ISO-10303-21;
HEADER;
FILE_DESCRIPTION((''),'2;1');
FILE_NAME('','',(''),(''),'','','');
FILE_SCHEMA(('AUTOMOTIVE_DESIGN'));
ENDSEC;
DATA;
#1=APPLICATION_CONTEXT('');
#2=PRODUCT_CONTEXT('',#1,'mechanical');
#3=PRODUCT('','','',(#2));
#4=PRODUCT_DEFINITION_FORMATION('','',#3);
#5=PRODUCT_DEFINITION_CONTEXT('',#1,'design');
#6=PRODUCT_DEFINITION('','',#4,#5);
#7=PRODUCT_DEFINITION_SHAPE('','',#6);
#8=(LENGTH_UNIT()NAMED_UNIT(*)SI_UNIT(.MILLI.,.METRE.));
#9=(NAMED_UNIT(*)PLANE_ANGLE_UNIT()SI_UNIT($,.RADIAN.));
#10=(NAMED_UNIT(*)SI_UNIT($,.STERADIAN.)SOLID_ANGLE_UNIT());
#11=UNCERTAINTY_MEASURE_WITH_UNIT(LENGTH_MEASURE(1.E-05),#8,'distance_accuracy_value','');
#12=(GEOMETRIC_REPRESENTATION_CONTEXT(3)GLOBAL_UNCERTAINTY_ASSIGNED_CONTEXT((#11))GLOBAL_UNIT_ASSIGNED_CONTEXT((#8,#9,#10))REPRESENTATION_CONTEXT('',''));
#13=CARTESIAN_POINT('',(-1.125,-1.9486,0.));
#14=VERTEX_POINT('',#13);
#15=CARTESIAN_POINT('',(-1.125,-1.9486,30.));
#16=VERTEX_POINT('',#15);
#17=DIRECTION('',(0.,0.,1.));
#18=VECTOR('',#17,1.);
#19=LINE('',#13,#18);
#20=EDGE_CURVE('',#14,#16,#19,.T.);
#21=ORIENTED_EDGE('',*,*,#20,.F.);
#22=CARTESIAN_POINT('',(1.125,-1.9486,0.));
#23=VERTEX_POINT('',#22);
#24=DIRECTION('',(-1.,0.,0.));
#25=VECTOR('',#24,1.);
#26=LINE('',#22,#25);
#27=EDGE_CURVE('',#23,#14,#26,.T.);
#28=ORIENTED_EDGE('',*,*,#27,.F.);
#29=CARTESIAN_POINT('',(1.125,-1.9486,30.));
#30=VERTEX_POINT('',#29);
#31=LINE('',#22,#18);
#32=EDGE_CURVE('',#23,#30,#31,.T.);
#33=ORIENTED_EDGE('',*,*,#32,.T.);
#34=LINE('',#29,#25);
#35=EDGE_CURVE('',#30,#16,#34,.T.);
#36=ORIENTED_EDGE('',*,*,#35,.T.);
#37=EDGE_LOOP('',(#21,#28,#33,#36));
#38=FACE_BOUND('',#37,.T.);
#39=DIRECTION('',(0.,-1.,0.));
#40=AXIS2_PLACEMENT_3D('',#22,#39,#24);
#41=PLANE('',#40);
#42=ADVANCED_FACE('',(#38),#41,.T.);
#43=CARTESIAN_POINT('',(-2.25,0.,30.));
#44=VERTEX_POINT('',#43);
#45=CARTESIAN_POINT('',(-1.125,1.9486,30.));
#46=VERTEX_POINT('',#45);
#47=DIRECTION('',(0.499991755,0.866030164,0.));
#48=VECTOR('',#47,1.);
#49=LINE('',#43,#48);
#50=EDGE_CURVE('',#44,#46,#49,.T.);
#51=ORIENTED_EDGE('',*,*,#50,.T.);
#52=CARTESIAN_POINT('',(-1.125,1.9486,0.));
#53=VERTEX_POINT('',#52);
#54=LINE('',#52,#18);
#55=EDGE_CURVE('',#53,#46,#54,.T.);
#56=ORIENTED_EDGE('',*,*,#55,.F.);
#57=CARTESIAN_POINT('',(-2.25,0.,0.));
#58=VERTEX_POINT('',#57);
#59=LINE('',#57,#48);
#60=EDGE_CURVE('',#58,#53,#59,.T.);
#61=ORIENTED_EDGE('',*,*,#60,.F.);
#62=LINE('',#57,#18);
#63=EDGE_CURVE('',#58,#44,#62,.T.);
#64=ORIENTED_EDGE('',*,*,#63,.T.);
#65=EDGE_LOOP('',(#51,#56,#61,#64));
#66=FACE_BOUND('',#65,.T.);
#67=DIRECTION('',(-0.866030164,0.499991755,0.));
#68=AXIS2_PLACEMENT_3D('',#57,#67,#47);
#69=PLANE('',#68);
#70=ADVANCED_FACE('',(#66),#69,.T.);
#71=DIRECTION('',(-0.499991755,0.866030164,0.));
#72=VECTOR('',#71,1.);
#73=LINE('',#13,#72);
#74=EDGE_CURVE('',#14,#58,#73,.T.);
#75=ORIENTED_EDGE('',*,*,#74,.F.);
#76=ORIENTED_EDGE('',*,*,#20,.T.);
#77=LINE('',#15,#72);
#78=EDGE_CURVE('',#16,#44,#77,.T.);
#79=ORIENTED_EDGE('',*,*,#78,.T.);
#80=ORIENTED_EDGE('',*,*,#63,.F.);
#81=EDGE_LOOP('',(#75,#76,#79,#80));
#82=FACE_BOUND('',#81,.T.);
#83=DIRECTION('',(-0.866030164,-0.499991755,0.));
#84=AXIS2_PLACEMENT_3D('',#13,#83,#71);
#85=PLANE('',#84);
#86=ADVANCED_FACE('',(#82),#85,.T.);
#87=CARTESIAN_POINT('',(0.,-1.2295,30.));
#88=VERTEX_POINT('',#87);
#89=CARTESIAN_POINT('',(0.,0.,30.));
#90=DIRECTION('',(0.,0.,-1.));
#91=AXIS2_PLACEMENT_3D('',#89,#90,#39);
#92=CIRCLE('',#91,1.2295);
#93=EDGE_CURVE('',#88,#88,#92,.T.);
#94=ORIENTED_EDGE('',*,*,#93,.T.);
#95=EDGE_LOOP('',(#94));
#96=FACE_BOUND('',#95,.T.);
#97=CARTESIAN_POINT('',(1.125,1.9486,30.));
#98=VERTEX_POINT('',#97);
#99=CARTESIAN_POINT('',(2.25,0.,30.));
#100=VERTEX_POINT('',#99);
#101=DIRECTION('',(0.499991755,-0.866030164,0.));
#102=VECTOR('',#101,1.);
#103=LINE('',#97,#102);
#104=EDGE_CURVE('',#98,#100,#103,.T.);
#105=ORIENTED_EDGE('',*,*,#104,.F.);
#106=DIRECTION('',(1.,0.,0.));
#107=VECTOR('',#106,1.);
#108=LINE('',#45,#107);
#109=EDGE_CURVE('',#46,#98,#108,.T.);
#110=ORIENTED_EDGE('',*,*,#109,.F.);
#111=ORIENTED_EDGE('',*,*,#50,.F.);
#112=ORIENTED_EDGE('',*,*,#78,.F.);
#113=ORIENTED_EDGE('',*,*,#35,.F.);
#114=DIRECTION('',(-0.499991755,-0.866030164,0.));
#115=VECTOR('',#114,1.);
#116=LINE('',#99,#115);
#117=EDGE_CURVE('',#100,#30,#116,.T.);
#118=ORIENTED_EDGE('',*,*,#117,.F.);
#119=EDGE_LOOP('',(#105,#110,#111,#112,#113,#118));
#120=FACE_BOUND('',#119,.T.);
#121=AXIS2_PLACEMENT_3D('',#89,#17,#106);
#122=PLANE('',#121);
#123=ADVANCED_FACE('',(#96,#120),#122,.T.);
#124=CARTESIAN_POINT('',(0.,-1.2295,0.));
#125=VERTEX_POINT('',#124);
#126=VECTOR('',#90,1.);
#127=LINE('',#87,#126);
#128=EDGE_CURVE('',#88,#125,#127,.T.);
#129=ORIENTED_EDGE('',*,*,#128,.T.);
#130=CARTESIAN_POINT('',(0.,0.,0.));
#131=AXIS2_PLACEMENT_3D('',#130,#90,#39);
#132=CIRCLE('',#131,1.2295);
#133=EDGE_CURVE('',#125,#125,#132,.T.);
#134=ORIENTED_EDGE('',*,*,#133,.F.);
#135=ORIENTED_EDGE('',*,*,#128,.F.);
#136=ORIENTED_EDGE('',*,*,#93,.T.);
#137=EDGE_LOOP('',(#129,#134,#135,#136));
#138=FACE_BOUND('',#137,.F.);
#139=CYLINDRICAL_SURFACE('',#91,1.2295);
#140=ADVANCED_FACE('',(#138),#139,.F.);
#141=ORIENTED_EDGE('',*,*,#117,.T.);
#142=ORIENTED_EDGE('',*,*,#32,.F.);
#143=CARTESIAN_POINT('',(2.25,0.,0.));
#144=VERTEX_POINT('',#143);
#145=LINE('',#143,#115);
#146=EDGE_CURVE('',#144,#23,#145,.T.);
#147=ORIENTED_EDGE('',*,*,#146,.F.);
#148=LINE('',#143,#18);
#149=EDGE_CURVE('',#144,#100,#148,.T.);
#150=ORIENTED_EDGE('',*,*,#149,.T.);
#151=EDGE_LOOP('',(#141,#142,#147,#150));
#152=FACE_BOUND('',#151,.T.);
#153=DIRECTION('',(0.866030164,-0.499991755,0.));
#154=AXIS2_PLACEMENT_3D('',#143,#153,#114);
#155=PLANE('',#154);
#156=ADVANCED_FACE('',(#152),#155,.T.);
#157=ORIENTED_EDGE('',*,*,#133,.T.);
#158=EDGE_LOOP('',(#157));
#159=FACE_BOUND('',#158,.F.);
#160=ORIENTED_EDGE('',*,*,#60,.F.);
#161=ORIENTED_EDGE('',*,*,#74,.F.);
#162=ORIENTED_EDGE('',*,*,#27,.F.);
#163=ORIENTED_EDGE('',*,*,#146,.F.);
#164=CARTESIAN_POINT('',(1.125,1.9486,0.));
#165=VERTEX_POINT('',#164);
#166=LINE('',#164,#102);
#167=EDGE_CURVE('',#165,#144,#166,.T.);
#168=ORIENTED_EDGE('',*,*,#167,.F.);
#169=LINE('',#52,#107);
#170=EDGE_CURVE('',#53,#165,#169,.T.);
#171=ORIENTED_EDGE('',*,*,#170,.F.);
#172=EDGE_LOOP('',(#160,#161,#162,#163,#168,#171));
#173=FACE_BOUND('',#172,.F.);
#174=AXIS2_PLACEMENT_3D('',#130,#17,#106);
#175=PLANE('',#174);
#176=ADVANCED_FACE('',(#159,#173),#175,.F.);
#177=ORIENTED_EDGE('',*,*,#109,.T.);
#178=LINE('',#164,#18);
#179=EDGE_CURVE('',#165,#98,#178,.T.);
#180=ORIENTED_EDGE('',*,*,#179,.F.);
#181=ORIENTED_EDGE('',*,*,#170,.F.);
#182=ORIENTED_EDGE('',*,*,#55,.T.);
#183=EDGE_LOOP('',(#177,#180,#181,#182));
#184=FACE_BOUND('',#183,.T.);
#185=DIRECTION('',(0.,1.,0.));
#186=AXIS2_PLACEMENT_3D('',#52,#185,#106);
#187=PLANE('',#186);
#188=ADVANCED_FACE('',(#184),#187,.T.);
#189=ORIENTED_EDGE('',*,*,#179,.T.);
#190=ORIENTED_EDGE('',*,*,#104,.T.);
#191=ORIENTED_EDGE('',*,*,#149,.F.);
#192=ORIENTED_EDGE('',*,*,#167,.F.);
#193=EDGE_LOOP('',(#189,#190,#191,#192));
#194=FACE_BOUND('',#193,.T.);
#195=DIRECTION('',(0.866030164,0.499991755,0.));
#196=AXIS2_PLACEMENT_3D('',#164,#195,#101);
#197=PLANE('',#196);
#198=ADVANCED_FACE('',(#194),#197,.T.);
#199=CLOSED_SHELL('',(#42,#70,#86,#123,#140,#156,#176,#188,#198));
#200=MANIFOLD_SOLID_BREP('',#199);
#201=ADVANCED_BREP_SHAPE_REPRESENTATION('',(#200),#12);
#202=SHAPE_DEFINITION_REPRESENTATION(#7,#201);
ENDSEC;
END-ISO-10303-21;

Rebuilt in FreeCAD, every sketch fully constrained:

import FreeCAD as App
import Part
import Sketcher
Q = App.Units.Quantity

doc = App.newDocument("Part")
body = doc.addObject("PartDesign::Body", "Body")

# Sketch on XY plane
sketch1 = doc.addObject("Sketcher::SketchObject", "Sketch")
body.addObject(sketch1)
sketch1.AttachmentSupport = (doc.XY_Plane, [""])
sketch1.MapMode = "FlatFace"
sketch1.addGeometry([
    Part.LineSegment(App.Vector(2.2, 0, 0), App.Vector(1.1, 1.9, 0)),  # 0
    Part.LineSegment(App.Vector(1.1, 1.9, 0), App.Vector(-1.1, 1.9, 0)),  # 1
    Part.LineSegment(App.Vector(-1.1, 1.9, 0), App.Vector(-2.2, 0, 0)),  # 2
    Part.LineSegment(App.Vector(-2.2, 0, 0), App.Vector(-1.1, -1.9, 0)),  # 3
    Part.LineSegment(App.Vector(-1.1, -1.9, 0), App.Vector(1.1, -1.9, 0)),  # 4
    Part.LineSegment(App.Vector(1.1, -1.9, 0), App.Vector(2.2, 0, 0)),  # 5
], False)
sketch1.addConstraint([
    Sketcher.Constraint("Coincident", 0, 2, 1, 1),
    Sketcher.Constraint("Coincident", 1, 2, 2, 1),
    Sketcher.Constraint("Coincident", 2, 2, 3, 1),
    Sketcher.Constraint("Coincident", 3, 2, 4, 1),
    Sketcher.Constraint("Coincident", 4, 2, 5, 1),
    Sketcher.Constraint("Coincident", 5, 2, 0, 1),
    Sketcher.Constraint("Horizontal", 1),
    Sketcher.Constraint("Horizontal", 4),
    Sketcher.Constraint("Symmetric", 0, 2, 3, 2, -1, 1),
    Sketcher.Constraint("Symmetric", 2, 2, 5, 2, -1, 1),
    Sketcher.Constraint("PointOnObject", 2, 2, -1),
    Sketcher.Constraint("Parallel", 2, 5),
    Sketcher.Constraint("Vertical", 1, 2, 3, 2),
    Sketcher.Constraint("DistanceX", 2, 2, 5, 2, 4.5),
    Sketcher.Constraint("Angle", 0, Q("119.9995 deg")),
    Sketcher.Constraint("DistanceX", 1, 2, 1, 1, 2.25),
])
pad1 = doc.addObject("PartDesign::Pad", "Pad")
body.addObject(pad1)
pad1.Profile = sketch1
pad1.Length = 30

# Sketch on XY plane
sketch2 = doc.addObject("Sketcher::SketchObject", "Sketch001")
body.addObject(sketch2)
sketch2.AttachmentSupport = (doc.XY_Plane, [""])
sketch2.MapMode = "FlatFace"
sketch2.AttachmentOffset = App.Placement(App.Vector(0, 0, 30), App.Rotation())
sketch2.addGeometry(Part.Circle(App.Vector(0, 0, 0), App.Vector(0, 0, 1), 1.2), False)
sketch2.addConstraint([
    Sketcher.Constraint("Coincident", 0, 3, -1, 1),
    Sketcher.Constraint("Diameter", 0, 2.459),
])
doc.recompute()
hole = doc.addObject("PartDesign::Hole", "Hole")
body.addObject(hole)
hole.Profile = sketch2
hole.ThreadType = "None"
hole.Diameter = 2.459
hole.DepthType = "ThroughAll"

doc.recompute()
